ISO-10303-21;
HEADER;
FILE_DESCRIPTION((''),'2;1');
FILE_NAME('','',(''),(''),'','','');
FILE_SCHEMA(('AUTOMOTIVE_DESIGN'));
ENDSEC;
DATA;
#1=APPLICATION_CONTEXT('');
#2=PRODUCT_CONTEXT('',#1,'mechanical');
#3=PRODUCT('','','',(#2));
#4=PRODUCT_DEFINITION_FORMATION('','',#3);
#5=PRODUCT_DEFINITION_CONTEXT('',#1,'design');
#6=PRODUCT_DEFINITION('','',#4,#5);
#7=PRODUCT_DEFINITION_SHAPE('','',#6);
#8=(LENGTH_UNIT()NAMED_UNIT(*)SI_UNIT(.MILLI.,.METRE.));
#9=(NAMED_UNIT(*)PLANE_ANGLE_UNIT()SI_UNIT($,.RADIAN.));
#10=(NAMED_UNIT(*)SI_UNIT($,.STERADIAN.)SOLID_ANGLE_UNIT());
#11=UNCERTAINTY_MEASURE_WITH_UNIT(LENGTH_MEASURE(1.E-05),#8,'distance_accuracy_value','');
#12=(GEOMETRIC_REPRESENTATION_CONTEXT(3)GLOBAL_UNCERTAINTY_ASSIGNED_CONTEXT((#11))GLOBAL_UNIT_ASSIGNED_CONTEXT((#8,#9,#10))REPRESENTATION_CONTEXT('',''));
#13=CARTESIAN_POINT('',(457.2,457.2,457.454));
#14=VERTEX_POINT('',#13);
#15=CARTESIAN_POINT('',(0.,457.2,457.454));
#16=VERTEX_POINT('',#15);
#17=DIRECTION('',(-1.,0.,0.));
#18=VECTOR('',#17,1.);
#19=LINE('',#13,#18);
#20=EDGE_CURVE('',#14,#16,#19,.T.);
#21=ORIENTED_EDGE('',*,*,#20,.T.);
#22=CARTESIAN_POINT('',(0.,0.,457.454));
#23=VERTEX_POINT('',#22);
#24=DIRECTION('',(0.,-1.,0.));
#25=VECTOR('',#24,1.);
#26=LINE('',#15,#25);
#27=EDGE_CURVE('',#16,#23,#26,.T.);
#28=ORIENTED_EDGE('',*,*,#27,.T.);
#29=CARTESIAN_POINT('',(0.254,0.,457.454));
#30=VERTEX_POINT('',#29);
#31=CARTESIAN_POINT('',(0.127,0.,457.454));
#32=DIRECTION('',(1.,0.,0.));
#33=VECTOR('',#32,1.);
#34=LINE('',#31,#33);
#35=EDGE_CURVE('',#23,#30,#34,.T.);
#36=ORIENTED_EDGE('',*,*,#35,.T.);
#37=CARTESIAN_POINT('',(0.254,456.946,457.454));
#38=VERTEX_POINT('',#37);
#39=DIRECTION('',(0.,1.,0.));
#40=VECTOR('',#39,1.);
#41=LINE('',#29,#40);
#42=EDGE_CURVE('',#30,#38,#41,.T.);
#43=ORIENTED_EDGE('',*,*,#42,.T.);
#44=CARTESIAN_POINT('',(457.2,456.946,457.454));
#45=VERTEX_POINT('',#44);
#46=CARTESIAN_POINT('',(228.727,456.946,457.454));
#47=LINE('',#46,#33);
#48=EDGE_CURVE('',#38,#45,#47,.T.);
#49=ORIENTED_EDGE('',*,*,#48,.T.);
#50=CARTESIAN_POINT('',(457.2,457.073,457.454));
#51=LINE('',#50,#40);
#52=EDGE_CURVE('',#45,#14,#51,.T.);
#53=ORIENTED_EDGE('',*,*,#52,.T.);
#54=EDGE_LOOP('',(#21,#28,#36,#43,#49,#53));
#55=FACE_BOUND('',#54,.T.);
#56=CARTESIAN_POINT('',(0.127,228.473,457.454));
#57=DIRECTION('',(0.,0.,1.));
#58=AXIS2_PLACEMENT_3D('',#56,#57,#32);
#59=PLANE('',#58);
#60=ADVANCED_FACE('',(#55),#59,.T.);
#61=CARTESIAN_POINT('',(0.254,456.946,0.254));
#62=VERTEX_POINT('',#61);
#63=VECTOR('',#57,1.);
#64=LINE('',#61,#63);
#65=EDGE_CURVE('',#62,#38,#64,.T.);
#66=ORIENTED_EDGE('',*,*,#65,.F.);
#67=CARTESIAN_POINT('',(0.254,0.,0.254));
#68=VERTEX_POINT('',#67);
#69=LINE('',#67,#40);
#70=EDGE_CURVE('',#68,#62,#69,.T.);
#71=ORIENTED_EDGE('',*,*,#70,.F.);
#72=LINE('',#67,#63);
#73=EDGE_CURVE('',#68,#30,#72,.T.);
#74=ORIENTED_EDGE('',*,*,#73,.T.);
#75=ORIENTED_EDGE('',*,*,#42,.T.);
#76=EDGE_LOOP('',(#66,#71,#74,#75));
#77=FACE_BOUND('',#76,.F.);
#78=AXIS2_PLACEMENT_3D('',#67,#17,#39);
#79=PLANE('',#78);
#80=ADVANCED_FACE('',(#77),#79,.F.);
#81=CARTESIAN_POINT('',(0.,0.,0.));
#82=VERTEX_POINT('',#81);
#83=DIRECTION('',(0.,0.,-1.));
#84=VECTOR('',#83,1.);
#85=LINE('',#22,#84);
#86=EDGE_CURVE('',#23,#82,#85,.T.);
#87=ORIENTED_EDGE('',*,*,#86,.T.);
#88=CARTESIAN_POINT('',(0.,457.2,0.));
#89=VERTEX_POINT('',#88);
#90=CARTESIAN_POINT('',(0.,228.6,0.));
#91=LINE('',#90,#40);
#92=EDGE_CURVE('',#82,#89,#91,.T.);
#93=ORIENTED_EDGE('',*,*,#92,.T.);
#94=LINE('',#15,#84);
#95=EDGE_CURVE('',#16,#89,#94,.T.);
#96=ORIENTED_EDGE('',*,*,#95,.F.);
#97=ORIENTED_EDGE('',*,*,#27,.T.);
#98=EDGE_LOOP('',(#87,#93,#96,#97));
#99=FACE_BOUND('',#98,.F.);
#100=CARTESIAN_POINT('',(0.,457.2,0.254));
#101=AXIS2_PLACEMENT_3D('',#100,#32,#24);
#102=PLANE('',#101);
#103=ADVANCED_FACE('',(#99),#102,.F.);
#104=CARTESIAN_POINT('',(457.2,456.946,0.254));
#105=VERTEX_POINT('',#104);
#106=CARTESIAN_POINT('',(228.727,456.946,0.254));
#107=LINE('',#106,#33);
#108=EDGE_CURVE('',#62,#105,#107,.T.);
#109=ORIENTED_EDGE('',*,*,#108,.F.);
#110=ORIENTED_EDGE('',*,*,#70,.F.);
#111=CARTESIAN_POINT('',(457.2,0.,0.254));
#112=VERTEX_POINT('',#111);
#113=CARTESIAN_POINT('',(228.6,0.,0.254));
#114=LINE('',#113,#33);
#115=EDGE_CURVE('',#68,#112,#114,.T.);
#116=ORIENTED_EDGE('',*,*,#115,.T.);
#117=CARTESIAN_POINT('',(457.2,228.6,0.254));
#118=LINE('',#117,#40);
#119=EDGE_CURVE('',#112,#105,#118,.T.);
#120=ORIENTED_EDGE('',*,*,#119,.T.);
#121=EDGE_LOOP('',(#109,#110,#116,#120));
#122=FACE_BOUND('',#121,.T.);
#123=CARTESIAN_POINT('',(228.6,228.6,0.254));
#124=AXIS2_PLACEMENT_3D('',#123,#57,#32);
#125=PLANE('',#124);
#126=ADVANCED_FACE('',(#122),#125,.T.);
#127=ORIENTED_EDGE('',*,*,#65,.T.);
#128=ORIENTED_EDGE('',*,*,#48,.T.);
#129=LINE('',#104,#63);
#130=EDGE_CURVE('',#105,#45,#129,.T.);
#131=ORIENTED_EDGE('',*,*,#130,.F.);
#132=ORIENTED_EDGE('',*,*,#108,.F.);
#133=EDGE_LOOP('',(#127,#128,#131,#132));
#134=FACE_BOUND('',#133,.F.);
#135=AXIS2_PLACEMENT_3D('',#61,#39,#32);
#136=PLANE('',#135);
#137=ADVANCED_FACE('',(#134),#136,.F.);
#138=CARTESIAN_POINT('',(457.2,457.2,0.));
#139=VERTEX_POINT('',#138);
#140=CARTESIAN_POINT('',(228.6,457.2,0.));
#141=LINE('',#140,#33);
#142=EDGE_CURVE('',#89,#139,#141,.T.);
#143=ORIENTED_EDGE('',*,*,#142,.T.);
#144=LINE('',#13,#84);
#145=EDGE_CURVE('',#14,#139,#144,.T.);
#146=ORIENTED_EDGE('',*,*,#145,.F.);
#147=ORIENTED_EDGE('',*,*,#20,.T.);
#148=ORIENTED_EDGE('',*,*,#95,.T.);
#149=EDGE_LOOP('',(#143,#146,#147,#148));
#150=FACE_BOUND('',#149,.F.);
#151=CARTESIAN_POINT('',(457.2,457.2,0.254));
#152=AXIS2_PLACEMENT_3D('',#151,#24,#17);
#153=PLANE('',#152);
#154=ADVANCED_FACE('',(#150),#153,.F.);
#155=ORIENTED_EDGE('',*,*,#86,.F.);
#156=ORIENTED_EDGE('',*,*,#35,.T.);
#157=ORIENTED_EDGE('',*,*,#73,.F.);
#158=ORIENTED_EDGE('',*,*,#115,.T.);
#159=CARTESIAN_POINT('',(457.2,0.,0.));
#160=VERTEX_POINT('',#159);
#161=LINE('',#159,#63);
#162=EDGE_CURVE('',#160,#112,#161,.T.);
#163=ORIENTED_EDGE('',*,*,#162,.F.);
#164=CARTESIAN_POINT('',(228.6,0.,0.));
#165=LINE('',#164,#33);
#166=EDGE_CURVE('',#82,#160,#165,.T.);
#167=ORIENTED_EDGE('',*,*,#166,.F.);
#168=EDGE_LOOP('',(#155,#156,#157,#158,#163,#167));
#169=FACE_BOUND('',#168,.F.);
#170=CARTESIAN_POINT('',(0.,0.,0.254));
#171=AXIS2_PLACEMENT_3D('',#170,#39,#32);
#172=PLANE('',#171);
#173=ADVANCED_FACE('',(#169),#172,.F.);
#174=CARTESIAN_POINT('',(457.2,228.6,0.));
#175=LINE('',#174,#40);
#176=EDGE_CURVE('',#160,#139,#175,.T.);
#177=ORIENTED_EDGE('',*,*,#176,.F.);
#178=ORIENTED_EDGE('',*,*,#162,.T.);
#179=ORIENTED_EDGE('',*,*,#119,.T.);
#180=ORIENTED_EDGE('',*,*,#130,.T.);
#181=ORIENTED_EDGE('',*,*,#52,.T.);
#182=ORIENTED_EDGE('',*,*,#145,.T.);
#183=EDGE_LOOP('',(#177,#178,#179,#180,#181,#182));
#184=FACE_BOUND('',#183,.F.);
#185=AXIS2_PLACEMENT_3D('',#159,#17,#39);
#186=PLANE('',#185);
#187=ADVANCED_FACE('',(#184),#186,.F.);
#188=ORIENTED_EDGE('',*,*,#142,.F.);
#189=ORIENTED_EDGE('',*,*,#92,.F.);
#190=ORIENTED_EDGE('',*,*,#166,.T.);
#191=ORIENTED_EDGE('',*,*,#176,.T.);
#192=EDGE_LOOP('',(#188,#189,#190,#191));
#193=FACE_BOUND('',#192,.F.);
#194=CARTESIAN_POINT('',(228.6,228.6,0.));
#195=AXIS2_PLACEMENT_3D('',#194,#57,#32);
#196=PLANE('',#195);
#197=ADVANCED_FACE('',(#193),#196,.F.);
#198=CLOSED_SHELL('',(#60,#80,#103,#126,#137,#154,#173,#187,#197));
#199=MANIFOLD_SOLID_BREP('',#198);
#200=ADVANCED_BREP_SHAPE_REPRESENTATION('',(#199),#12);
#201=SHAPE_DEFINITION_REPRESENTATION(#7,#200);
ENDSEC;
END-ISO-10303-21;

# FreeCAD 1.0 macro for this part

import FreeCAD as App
import Part
import Sketcher

V = App.Vector
Q = App.Units.Quantity


def add_polygon(sketch, points):
    """Adds a closed chain of lines whose ends are joined by coincident constraints."""
    first, n = sketch.GeometryCount, len(points)
    for a, b in zip(points, points[1:] + points[:1]):
        sketch.addGeometry(Part.LineSegment(App.Vector(*a, 0), App.Vector(*b, 0)), False)
    for i in range(n):
        sketch.addConstraint(Sketcher.Constraint("Coincident", first + i, 2, first + (i + 1) % n, 1))

doc = App.newDocument("Part")
body = doc.addObject("PartDesign::Body", "Body")

# Sketch on XY plane
sketch1 = doc.addObject("Sketcher::SketchObject", "Sketch")
body.addObject(sketch1)
sketch1.AttachmentSupport = (doc.XY_Plane, [""])
sketch1.MapMode = "FlatFace"
add_polygon(sketch1, [(0, 457.2), (0, 0), (457.2, 0), (457.2, 457.2)])  # lines 0-3
sketch1.addConstraint(Sketcher.Constraint("Vertical", 0))
sketch1.addConstraint(Sketcher.Constraint("Horizontal", 1))
sketch1.addConstraint(Sketcher.Constraint("Vertical", 2))
sketch1.addConstraint(Sketcher.Constraint("Horizontal", 3))
sketch1.addConstraint(Sketcher.Constraint("Coincident", 0, 2, -1, 1))
sketch1.addConstraint(Sketcher.Constraint("Equal", 3, 0))
sketch1.addConstraint(Sketcher.Constraint("DistanceX", 1, 1, 1, 2, Q("18 in")))
pad1 = doc.addObject("PartDesign::Pad", "Pad")
body.addObject(pad1)
pad1.Profile = sketch1
pad1.Length = Q("0.01 in")

# Sketch on XY plane
sketch2 = doc.addObject("Sketcher::SketchObject", "Sketch001")
body.addObject(sketch2)
sketch2.AttachmentSupport = (doc.XY_Plane, [""])
sketch2.MapMode = "FlatFace"
sketch2.AttachmentOffset = App.Placement(V(0, 0, 0.01 * 25.4), App.Rotation())
add_polygon(sketch2, [(0, 0), (0.254, 0), (0.254, 456.946), (457.2, 456.946), (457.2, 457.2), (0, 457.2)])  # lines 0-5
sketch2.addConstraint(Sketcher.Constraint("Horizontal", 0))
sketch2.addConstraint(Sketcher.Constraint("Vertical", 1))
sketch2.addConstraint(Sketcher.Constraint("Horizontal", 2))
sketch2.addConstraint(Sketcher.Constraint("Vertical", 3))
sketch2.addConstraint(Sketcher.Constraint("Horizontal", 4))
sketch2.addConstraint(Sketcher.Constraint("Vertical", 5))
sketch2.addConstraint(Sketcher.Constraint("Coincident", 5, 2, -1, 1))
sketch2.addConstraint(Sketcher.Constraint("Equal", 2, 1))
sketch2.addConstraint(Sketcher.Constraint("Equal", 0, 3))
sketch2.addConstraint(Sketcher.Constraint("DistanceX", 4, 2, 4, 1, Q("18 in")))
sketch2.addConstraint(Sketcher.Constraint("DistanceX", 0, 1, 0, 2, Q("0.01 in")))
pad2 = doc.addObject("PartDesign::Pad", "Pad001")
body.addObject(pad2)
pad2.Profile = sketch2
pad2.Length = Q("18 in")

doc.recompute()
